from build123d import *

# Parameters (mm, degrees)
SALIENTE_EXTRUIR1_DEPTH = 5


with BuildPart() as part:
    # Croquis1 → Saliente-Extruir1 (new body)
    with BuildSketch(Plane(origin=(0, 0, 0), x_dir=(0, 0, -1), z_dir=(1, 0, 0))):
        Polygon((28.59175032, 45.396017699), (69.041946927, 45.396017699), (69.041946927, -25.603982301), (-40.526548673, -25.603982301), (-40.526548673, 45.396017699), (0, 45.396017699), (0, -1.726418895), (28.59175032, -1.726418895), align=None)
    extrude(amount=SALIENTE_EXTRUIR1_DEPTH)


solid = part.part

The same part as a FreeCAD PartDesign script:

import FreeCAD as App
import Part
import Sketcher

V = App.Vector
Q = App.Units.Quantity

doc = App.newDocument("Part")
body = doc.addObject("PartDesign::Body", "Body")

sketch1 = body.newObject("Sketcher::SketchObject", "Sketch")
sketch1.AttachmentSupport = (doc.getObject("YZ_Plane"), [""])
sketch1.MapMode = "FlatFace"
sketch1.addGeometry(Part.LineSegment(V(45, -69, 0), V(45, -29, 0)), False)
sketch1.addGeometry(Part.LineSegment(V(45, -29, 0), V(-2, -29, 0)), False)
sketch1.addGeometry(Part.LineSegment(V(-2, -29, 0), V(-2, 0, 0)), False)
sketch1.addGeometry(Part.LineSegment(V(-2, 0, 0), V(45, 0, 0)), False)
sketch1.addGeometry(Part.LineSegment(V(45, 0, 0), V(45, 41, 0)), False)
sketch1.addGeometry(Part.LineSegment(V(45, 41, 0), V(-26, 41, 0)), False)
sketch1.addGeometry(Part.LineSegment(V(-26, 41, 0), V(-26, -69, 0)), False)
sketch1.addGeometry(Part.LineSegment(V(-26, -69, 0), V(45, -69, 0)), False)
sketch1.addConstraint(Sketcher.Constraint("Coincident", 0, 2, 1, 1))
sketch1.addConstraint(Sketcher.Constraint("Coincident", 1, 2, 2, 1))
sketch1.addConstraint(Sketcher.Constraint("Coincident", 2, 2, 3, 1))
sketch1.addConstraint(Sketcher.Constraint("Coincident", 3, 2, 4, 1))
sketch1.addConstraint(Sketcher.Constraint("Coincident", 4, 2, 5, 1))
sketch1.addConstraint(Sketcher.Constraint("Coincident", 5, 2, 6, 1))
sketch1.addConstraint(Sketcher.Constraint("Coincident", 6, 2, 7, 1))
sketch1.addConstraint(Sketcher.Constraint("Coincident", 7, 2, 0, 1))
sketch1.addConstraint(Sketcher.Constraint("Vertical", 0))
sketch1.addConstraint(Sketcher.Constraint("Horizontal", 1))
sketch1.addConstraint(Sketcher.Constraint("Vertical", 2))
sketch1.addConstraint(Sketcher.Constraint("Horizontal", 3))
sketch1.addConstraint(Sketcher.Constraint("Vertical", 4))
sketch1.addConstraint(Sketcher.Constraint("Horizontal", 5))
sketch1.addConstraint(Sketcher.Constraint("Vertical", 6))
sketch1.addConstraint(Sketcher.Constraint("Horizontal", 7))
sketch1.addConstraint(Sketcher.Constraint("PointOnObject", 2, 2, -1))
sketch1.addConstraint(Sketcher.Constraint("Vertical", 0, 2, 3, 2))
sketch1.addConstraint(Sketcher.Constraint("DistanceX", 5, 2, 5, 1, Q("71 mm")))
sketch1.addConstraint(Sketcher.Constraint("DistanceY", 2, 1, 2, 2, Q("28.59175 mm")))
sketch1.addConstraint(Sketcher.Constraint("DistanceY", 4, 1, 4, 2, Q("40.526549 mm")))
sketch1.addConstraint(Sketcher.Constraint("DistanceX", 1, 2, 1, 1, Q("47.122437 mm")))
sketch1.addConstraint(Sketcher.Constraint("DistanceY", 0, 1, 0, 2, Q("40.450197 mm")))
sketch1.addConstraint(Sketcher.Constraint("DistanceX", 1, 2, -1, 1, Q("1.726419 mm")))
pad1 = body.newObject("PartDesign::Pad", "Pad")
pad1.Profile = sketch1
pad1.Length = 5

doc.recompute()
